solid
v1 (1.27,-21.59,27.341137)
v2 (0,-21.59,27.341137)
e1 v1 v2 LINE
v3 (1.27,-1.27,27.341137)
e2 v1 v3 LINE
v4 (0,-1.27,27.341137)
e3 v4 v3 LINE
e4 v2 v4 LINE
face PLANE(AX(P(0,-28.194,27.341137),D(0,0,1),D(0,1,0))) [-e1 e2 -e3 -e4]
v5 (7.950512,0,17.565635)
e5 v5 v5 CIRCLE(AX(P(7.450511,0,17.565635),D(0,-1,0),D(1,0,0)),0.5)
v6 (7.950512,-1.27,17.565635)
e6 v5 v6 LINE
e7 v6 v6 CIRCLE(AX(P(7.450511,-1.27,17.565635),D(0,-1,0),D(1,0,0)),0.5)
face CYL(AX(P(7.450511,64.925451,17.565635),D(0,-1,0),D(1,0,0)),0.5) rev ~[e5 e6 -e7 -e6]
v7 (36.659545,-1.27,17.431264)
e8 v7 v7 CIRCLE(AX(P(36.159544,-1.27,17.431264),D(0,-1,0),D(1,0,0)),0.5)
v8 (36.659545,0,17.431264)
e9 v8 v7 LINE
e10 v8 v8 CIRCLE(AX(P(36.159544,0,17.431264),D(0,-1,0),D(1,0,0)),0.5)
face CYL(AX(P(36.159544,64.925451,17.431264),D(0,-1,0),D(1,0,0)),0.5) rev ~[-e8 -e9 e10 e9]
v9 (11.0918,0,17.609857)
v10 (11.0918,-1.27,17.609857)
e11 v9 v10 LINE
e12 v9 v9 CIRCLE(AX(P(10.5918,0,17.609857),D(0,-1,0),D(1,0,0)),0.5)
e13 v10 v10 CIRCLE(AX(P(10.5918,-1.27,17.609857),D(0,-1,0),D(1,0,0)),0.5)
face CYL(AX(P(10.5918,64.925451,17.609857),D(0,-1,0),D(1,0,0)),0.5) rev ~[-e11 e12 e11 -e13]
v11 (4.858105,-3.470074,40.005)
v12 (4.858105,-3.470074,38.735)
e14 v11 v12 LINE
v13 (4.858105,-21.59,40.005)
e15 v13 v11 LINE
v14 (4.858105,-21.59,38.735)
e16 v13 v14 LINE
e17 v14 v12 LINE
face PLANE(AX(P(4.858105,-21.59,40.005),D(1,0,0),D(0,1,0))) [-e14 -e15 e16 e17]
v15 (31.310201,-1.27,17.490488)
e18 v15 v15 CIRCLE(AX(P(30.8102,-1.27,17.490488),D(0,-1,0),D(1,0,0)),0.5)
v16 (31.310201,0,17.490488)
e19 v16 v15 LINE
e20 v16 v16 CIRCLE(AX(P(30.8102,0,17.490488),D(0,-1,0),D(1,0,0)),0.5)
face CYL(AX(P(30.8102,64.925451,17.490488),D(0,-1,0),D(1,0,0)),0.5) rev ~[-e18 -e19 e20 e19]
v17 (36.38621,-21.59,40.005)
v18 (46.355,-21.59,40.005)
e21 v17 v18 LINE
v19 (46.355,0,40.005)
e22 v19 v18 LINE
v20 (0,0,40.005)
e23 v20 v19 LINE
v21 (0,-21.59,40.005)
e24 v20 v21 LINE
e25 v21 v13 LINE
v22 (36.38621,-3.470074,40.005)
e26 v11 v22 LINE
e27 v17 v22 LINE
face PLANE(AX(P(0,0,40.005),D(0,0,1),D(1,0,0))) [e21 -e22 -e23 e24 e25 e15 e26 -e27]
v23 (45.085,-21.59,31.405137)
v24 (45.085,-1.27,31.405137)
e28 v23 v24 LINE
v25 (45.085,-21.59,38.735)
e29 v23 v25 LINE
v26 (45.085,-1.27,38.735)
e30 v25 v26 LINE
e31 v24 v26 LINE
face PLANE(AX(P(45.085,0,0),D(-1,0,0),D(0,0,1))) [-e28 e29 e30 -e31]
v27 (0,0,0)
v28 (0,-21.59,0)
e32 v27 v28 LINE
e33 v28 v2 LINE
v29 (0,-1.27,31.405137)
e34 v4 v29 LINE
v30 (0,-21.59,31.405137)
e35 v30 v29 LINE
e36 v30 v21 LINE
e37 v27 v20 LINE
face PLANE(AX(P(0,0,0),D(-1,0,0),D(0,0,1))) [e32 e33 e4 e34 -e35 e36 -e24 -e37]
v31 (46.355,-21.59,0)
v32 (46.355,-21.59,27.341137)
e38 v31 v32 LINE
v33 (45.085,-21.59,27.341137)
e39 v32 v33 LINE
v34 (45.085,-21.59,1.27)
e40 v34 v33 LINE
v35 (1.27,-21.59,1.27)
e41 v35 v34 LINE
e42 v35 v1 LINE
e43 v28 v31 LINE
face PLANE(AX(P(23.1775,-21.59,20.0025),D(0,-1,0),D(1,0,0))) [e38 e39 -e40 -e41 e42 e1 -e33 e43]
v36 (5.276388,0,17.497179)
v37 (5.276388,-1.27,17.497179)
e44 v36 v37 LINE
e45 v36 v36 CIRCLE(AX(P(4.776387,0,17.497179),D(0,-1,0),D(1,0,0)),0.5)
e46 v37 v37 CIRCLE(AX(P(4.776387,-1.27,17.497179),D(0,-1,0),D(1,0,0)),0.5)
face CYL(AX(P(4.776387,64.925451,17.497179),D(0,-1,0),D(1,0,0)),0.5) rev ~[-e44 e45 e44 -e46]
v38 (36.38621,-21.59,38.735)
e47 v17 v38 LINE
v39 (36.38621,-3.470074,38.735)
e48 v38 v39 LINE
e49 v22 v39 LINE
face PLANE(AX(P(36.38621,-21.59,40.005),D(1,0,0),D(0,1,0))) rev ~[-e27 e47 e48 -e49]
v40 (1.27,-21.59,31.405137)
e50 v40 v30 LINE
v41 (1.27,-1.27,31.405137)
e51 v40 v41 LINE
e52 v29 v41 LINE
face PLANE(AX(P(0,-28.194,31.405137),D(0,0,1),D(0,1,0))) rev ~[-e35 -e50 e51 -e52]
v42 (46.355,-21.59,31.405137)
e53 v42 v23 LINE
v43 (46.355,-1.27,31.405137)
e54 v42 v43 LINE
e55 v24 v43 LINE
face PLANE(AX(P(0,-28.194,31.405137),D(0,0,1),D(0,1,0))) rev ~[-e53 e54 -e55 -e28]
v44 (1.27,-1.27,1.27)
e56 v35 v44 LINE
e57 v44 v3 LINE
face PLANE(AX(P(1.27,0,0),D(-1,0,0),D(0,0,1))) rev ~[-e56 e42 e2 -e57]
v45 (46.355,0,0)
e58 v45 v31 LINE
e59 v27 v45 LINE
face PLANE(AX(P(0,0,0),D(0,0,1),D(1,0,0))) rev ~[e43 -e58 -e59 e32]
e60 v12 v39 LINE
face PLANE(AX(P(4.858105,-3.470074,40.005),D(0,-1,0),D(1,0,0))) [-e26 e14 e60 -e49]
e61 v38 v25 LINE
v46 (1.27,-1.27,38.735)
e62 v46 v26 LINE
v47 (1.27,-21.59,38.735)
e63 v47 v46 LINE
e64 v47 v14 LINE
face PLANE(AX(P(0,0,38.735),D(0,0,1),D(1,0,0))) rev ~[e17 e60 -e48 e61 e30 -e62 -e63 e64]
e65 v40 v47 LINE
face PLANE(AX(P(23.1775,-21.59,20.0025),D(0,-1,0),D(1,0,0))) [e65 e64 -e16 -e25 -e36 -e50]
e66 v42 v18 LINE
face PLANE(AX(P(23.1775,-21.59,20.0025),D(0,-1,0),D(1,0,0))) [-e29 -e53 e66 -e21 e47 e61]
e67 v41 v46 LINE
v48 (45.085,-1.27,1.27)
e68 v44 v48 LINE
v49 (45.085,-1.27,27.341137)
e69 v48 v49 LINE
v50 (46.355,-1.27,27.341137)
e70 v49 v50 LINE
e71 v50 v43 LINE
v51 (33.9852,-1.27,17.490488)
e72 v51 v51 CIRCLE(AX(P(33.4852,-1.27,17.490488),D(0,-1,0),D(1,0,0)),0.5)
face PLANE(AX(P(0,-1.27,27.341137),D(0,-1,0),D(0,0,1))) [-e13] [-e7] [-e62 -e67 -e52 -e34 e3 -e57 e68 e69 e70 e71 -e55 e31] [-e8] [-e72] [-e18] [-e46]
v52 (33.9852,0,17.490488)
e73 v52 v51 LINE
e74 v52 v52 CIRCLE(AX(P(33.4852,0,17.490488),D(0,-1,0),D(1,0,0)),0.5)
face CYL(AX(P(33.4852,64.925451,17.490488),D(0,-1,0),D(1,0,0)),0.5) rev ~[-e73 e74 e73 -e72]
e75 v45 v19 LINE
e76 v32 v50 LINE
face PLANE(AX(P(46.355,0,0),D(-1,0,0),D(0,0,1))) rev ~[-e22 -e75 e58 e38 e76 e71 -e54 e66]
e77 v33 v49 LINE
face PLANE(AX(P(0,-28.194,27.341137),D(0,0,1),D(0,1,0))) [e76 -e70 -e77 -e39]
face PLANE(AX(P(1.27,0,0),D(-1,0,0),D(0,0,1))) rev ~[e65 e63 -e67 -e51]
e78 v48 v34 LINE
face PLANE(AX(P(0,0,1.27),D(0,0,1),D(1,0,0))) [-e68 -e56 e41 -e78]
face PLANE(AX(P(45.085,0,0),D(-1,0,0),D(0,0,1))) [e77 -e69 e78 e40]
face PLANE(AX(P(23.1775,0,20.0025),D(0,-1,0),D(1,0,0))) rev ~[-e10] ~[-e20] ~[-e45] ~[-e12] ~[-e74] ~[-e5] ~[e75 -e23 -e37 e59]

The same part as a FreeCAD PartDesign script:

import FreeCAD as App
import Part
import Sketcher
Q = App.Units.Quantity


def faces_at(feature, points):
    """Names of the faces that lie closest to the given points."""
    faces = feature.Shape.Faces
    near = lambda p: min(range(len(faces)), key=lambda i: faces[i].distToShape(Part.Vertex(*p))[0])
    return sorted({f"Face{near(p) + 1}" for p in points})


def add_polygon(sketch, points):
    """Adds a closed chain of lines whose ends are joined by coincident constraints."""
    first, n = sketch.GeometryCount, len(points)
    for a, b in zip(points, points[1:] + points[:1]):
        sketch.addGeometry(Part.LineSegment(App.Vector(*a, 0), App.Vector(*b, 0)), False)
    for i in range(n):
        sketch.addConstraint(Sketcher.Constraint("Coincident", first + i, 2, first + (i + 1) % n, 1))

doc = App.newDocument("Part")
params = doc.addObject("Spreadsheet::Sheet", "Params")
for row, (alias, value) in enumerate([
    ("sketch1_width", "1.825 in"),
    ("sketch1_height", "1.575 in"),
    ("pad1_length", "0.85 in"),
    ("thickness_wall", "0.05 in"),
    ("sketch2_width", "1.06 in"),
    ("sketch2_height", "0.16 in"),
    ("pocket1_length", "2.49 in"),
    ("hole_diameter", "1.000001 mm"),
    ("hole2_diameter", "1.000001 mm"),
    ("hole3_diameter", "1.000001 mm"),
    ("hole4_diameter", "1.000001 mm"),
    ("hole5_diameter", "1.000001 mm"),
    ("pocket2_length", "1 in"),
    ("hole6_diameter", "1.000001 mm"),
], start=1):
    params.set(f"A{row}", alias)
    params.set(f"B{row}", "=" + value)
    params.setAlias(f"B{row}", alias)

body = doc.addObject("PartDesign::Body", "Body")

sketch1 = body.newObject("Sketcher::SketchObject", "Sketch")
sketch1.AttachmentSupport = (doc.getObject("XZ_Plane"), [""])
sketch1.MapMode = "FlatFace"
add_polygon(sketch1, [(0, 40), (0, 0), (46, 0), (46, 40)])
sketch1.addConstraint([
    Sketcher.Constraint("Vertical", 0),
    Sketcher.Constraint("Horizontal", 1),
    Sketcher.Constraint("Vertical", 2),
    Sketcher.Constraint("Horizontal", 3),
    Sketcher.Constraint("Coincident", 0, 2, -1, 1),
    Sketcher.Constraint("DistanceX", 1, 1, 1, 2, Q("1.825 in")),
    Sketcher.Constraint("DistanceY", 0, 2, 0, 1, Q("1.575 in")),
])
sketch1.setExpression("Constraints[9]", "Params.sketch1_width")
sketch1.setExpression("Constraints[10]", "Params.sketch1_height")
pad1 = body.newObject("PartDesign::Pad", "Pad")
pad1.Profile = sketch1
pad1.setExpression("Length", "Params.pad1_length")
doc.recompute()

thickness = body.newObject("PartDesign::Thickness", "Thickness")
thickness.Base = (pad1, faces_at(pad1, [(23.177, -21.59, 20.003)]))
thickness.setExpression("Value", "Params.thickness_wall")
thickness.Reversed = True
thickness.Join = "Arc"

sketch2 = body.newObject("Sketcher::SketchObject", "Sketch001")
sketch2.AttachmentSupport = (doc.getObject("YZ_Plane"), [""])
sketch2.MapMode = "FlatFace"
add_polygon(sketch2, [(-28.2, 31.4), (-28.2, 27.3), (-1.3, 27.3), (-1.3, 31.4)])
sketch2.addConstraint([
    Sketcher.Constraint("Vertical", 0),
    Sketcher.Constraint("Horizontal", 1),
    Sketcher.Constraint("Vertical", 2),
    Sketcher.Constraint("Horizontal", 3),
    Sketcher.Constraint("DistanceX", 1, 1, 1, 2, Q("1.06 in")),
    Sketcher.Constraint("DistanceY", 0, 2, 0, 1, Q("0.16 in")),
    Sketcher.Constraint("DistanceX", 0, 2, -1, 1, Q("1.11 in")),
    Sketcher.Constraint("DistanceY", -1, 1, 0, 2, Q("27.341137 mm")),
])
sketch2.setExpression("Constraints[8]", "Params.sketch2_width")
sketch2.setExpression("Constraints[9]", "Params.sketch2_height")
pocket1 = body.newObject("PartDesign::Pocket", "Pocket")
pocket1.Profile = sketch2
pocket1.setExpression("Length", "Params.pocket1_length")
pocket1.Reversed = True

sketch3 = body.newObject("Sketcher::SketchObject", "Sketch002")
sketch3.AttachmentSupport = (doc.getObject("XZ_Plane"), [""])
sketch3.MapMode = "FlatFace"
sketch3.addGeometry(Part.Circle(App.Vector(10.6, 17.6, 0), App.Vector(0, 0, 1), 0.5), False)
sketch3.addConstraint([
    Sketcher.Constraint("Diameter", 0, Q("1.000001 mm")),
    Sketcher.Constraint("DistanceX", -1, 1, 0, 3, Q("0.417 in")),
    Sketcher.Constraint("DistanceY", -1, 1, 0, 3, Q("17.609857 mm")),
])
doc.recompute()
hole = body.newObject("PartDesign::Hole", "Hole")
hole.Profile = sketch3
hole.ThreadType = "None"
hole.setExpression("Diameter", "Params.hole_diameter")
hole.DepthType = "ThroughAll"
hole.Reversed = True

sketch4 = body.newObject("Sketcher::SketchObject", "Sketch003")
sketch4.AttachmentSupport = (doc.getObject("XZ_Plane"), [""])
sketch4.MapMode = "FlatFace"
sketch4.addGeometry(Part.Circle(App.Vector(30.8, 17.5, 0), App.Vector(0, 0, 1), 0.5), False)
sketch4.addConstraint([
    Sketcher.Constraint("Diameter", 0, Q("1.000001 mm")),
    Sketcher.Constraint("DistanceX", -1, 1, 0, 3, Q("1.213 in")),
    Sketcher.Constraint("DistanceY", -1, 1, 0, 3, Q("17.490488 mm")),
])
doc.recompute()
hole2 = body.newObject("PartDesign::Hole", "Hole001")
hole2.Profile = sketch4
hole2.ThreadType = "None"
hole2.setExpression("Diameter", "Params.hole2_diameter")
hole2.DepthType = "ThroughAll"
hole2.Reversed = True

sketch5 = body.newObject("Sketcher::SketchObject", "Sketch004")
sketch5.AttachmentSupport = (doc.getObject("XZ_Plane"), [""])
sketch5.MapMode = "FlatFace"
sketch5.addGeometry(Part.Circle(App.Vector(33.5, 17.5, 0), App.Vector(0, 0, 1), 0.5), False)
sketch5.addConstraint([
    Sketcher.Constraint("Diameter", 0, Q("1.000001 mm")),
    Sketcher.Constraint("DistanceX", -1, 1, 0, 3, Q("33.4852 mm")),
    Sketcher.Constraint("DistanceY", -1, 1, 0, 3, Q("17.490488 mm")),
])
doc.recompute()
hole3 = body.newObject("PartDesign::Hole", "Hole002")
hole3.Profile = sketch5
hole3.ThreadType = "None"
hole3.setExpression("Diameter", "Params.hole3_diameter")
hole3.DepthType = "ThroughAll"
hole3.Reversed = True

sketch6 = body.newObject("Sketcher::SketchObject", "Sketch005")
sketch6.AttachmentSupport = (doc.getObject("XZ_Plane"), [""])
sketch6.MapMode = "FlatFace"
sketch6.addGeometry(Part.Circle(App.Vector(36.2, 17.4, 0), App.Vector(0, 0, 1), 0.5), False)
sketch6.addConstraint([
    Sketcher.Constraint("Diameter", 0, Q("1.000001 mm")),
    Sketcher.Constraint("DistanceX", -1, 1, 0, 3, Q("36.159544 mm")),
    Sketcher.Constraint("DistanceY", -1, 1, 0, 3, Q("17.431264 mm")),
])
doc.recompute()
hole4 = body.newObject("PartDesign::Hole", "Hole003")
hole4.Profile = sketch6
hole4.ThreadType = "None"
hole4.setExpression("Diameter", "Params.hole4_diameter")
hole4.DepthType = "ThroughAll"
hole4.Reversed = True

sketch7 = body.newObject("Sketcher::SketchObject", "Sketch006")
sketch7.AttachmentSupport = (doc.getObject("XZ_Plane"), [""])
sketch7.MapMode = "FlatFace"
sketch7.addGeometry(Part.Circle(App.Vector(7.5, 17.6, 0), App.Vector(0, 0, 1), 0.5), False)
sketch7.addConstraint([
    Sketcher.Constraint("Diameter", 0, Q("1.000001 mm")),
    Sketcher.Constraint("DistanceX", -1, 1, 0, 3, Q("7.450511 mm")),
    Sketcher.Constraint("DistanceY", -1, 1, 0, 3, Q("17.565635 mm")),
])
doc.recompute()
hole5 = body.newObject("PartDesign::Hole", "Hole004")
hole5.Profile = sketch7
hole5.ThreadType = "None"
hole5.setExpression("Diameter", "Params.hole5_diameter")
hole5.DepthType = "ThroughAll"
hole5.Reversed = True

sketch8 = body.newObject("Sketcher::SketchObject", "Sketch007")
sketch8.AttachmentSupport = (doc.getObject("XY_Plane"), [""])
sketch8.MapMode = "FlatFace"
sketch8.AttachmentOffset = App.Placement(App.Vector(0, 0, 1.575 * 25.4), App.Rotation())
add_polygon(sketch8, [(5, -3), (5, -22), (36, -22), (36, -3)])
sketch8.addConstraint([
    Sketcher.Constraint("Vertical", 0),
    Sketcher.Constraint("Horizontal", 1),
    Sketcher.Constraint("Vertical", 2),
    Sketcher.Constraint("Horizontal", 3),
    Sketcher.Constraint("DistanceY", 0, 2, -1, 1, Q("0.85 in")),
    Sketcher.Constraint("DistanceX", 1, 1, 1, 2, Q("31.528105 mm")),
    Sketcher.Constraint("DistanceY", 0, 2, 0, 1, Q("18.119926 mm")),
    Sketcher.Constraint("DistanceX", -1, 1, 1, 2, Q("36.38621 mm")),
])
pocket2 = body.newObject("PartDesign::Pocket", "Pocket001")
pocket2.Profile = sketch8
pocket2.setExpression("Length", "Params.pocket2_length")

sketch9 = body.newObject("Sketcher::SketchObject", "Sketch008")
sketch9.AttachmentSupport = (doc.getObject("XZ_Plane"), [""])
sketch9.MapMode = "FlatFace"
sketch9.addGeometry(Part.Circle(App.Vector(4.8, 17.5, 0), App.Vector(0, 0, 1), 0.5), False)
sketch9.addConstraint([
    Sketcher.Constraint("Diameter", 0, Q("1.000001 mm")),
    Sketcher.Constraint("DistanceY", -1, 1, 0, 3, Q("17.497179 mm")),
    Sketcher.Constraint("DistanceX", -1, 1, 0, 3, Q("4.776387 mm")),
])
doc.recompute()
hole6 = body.newObject("PartDesign::Hole", "Hole005")
hole6.Profile = sketch9
hole6.ThreadType = "None"
hole6.setExpression("Diameter", "Params.hole6_diameter")
hole6.DepthType = "ThroughAll"
hole6.Reversed = True

doc.recompute()
